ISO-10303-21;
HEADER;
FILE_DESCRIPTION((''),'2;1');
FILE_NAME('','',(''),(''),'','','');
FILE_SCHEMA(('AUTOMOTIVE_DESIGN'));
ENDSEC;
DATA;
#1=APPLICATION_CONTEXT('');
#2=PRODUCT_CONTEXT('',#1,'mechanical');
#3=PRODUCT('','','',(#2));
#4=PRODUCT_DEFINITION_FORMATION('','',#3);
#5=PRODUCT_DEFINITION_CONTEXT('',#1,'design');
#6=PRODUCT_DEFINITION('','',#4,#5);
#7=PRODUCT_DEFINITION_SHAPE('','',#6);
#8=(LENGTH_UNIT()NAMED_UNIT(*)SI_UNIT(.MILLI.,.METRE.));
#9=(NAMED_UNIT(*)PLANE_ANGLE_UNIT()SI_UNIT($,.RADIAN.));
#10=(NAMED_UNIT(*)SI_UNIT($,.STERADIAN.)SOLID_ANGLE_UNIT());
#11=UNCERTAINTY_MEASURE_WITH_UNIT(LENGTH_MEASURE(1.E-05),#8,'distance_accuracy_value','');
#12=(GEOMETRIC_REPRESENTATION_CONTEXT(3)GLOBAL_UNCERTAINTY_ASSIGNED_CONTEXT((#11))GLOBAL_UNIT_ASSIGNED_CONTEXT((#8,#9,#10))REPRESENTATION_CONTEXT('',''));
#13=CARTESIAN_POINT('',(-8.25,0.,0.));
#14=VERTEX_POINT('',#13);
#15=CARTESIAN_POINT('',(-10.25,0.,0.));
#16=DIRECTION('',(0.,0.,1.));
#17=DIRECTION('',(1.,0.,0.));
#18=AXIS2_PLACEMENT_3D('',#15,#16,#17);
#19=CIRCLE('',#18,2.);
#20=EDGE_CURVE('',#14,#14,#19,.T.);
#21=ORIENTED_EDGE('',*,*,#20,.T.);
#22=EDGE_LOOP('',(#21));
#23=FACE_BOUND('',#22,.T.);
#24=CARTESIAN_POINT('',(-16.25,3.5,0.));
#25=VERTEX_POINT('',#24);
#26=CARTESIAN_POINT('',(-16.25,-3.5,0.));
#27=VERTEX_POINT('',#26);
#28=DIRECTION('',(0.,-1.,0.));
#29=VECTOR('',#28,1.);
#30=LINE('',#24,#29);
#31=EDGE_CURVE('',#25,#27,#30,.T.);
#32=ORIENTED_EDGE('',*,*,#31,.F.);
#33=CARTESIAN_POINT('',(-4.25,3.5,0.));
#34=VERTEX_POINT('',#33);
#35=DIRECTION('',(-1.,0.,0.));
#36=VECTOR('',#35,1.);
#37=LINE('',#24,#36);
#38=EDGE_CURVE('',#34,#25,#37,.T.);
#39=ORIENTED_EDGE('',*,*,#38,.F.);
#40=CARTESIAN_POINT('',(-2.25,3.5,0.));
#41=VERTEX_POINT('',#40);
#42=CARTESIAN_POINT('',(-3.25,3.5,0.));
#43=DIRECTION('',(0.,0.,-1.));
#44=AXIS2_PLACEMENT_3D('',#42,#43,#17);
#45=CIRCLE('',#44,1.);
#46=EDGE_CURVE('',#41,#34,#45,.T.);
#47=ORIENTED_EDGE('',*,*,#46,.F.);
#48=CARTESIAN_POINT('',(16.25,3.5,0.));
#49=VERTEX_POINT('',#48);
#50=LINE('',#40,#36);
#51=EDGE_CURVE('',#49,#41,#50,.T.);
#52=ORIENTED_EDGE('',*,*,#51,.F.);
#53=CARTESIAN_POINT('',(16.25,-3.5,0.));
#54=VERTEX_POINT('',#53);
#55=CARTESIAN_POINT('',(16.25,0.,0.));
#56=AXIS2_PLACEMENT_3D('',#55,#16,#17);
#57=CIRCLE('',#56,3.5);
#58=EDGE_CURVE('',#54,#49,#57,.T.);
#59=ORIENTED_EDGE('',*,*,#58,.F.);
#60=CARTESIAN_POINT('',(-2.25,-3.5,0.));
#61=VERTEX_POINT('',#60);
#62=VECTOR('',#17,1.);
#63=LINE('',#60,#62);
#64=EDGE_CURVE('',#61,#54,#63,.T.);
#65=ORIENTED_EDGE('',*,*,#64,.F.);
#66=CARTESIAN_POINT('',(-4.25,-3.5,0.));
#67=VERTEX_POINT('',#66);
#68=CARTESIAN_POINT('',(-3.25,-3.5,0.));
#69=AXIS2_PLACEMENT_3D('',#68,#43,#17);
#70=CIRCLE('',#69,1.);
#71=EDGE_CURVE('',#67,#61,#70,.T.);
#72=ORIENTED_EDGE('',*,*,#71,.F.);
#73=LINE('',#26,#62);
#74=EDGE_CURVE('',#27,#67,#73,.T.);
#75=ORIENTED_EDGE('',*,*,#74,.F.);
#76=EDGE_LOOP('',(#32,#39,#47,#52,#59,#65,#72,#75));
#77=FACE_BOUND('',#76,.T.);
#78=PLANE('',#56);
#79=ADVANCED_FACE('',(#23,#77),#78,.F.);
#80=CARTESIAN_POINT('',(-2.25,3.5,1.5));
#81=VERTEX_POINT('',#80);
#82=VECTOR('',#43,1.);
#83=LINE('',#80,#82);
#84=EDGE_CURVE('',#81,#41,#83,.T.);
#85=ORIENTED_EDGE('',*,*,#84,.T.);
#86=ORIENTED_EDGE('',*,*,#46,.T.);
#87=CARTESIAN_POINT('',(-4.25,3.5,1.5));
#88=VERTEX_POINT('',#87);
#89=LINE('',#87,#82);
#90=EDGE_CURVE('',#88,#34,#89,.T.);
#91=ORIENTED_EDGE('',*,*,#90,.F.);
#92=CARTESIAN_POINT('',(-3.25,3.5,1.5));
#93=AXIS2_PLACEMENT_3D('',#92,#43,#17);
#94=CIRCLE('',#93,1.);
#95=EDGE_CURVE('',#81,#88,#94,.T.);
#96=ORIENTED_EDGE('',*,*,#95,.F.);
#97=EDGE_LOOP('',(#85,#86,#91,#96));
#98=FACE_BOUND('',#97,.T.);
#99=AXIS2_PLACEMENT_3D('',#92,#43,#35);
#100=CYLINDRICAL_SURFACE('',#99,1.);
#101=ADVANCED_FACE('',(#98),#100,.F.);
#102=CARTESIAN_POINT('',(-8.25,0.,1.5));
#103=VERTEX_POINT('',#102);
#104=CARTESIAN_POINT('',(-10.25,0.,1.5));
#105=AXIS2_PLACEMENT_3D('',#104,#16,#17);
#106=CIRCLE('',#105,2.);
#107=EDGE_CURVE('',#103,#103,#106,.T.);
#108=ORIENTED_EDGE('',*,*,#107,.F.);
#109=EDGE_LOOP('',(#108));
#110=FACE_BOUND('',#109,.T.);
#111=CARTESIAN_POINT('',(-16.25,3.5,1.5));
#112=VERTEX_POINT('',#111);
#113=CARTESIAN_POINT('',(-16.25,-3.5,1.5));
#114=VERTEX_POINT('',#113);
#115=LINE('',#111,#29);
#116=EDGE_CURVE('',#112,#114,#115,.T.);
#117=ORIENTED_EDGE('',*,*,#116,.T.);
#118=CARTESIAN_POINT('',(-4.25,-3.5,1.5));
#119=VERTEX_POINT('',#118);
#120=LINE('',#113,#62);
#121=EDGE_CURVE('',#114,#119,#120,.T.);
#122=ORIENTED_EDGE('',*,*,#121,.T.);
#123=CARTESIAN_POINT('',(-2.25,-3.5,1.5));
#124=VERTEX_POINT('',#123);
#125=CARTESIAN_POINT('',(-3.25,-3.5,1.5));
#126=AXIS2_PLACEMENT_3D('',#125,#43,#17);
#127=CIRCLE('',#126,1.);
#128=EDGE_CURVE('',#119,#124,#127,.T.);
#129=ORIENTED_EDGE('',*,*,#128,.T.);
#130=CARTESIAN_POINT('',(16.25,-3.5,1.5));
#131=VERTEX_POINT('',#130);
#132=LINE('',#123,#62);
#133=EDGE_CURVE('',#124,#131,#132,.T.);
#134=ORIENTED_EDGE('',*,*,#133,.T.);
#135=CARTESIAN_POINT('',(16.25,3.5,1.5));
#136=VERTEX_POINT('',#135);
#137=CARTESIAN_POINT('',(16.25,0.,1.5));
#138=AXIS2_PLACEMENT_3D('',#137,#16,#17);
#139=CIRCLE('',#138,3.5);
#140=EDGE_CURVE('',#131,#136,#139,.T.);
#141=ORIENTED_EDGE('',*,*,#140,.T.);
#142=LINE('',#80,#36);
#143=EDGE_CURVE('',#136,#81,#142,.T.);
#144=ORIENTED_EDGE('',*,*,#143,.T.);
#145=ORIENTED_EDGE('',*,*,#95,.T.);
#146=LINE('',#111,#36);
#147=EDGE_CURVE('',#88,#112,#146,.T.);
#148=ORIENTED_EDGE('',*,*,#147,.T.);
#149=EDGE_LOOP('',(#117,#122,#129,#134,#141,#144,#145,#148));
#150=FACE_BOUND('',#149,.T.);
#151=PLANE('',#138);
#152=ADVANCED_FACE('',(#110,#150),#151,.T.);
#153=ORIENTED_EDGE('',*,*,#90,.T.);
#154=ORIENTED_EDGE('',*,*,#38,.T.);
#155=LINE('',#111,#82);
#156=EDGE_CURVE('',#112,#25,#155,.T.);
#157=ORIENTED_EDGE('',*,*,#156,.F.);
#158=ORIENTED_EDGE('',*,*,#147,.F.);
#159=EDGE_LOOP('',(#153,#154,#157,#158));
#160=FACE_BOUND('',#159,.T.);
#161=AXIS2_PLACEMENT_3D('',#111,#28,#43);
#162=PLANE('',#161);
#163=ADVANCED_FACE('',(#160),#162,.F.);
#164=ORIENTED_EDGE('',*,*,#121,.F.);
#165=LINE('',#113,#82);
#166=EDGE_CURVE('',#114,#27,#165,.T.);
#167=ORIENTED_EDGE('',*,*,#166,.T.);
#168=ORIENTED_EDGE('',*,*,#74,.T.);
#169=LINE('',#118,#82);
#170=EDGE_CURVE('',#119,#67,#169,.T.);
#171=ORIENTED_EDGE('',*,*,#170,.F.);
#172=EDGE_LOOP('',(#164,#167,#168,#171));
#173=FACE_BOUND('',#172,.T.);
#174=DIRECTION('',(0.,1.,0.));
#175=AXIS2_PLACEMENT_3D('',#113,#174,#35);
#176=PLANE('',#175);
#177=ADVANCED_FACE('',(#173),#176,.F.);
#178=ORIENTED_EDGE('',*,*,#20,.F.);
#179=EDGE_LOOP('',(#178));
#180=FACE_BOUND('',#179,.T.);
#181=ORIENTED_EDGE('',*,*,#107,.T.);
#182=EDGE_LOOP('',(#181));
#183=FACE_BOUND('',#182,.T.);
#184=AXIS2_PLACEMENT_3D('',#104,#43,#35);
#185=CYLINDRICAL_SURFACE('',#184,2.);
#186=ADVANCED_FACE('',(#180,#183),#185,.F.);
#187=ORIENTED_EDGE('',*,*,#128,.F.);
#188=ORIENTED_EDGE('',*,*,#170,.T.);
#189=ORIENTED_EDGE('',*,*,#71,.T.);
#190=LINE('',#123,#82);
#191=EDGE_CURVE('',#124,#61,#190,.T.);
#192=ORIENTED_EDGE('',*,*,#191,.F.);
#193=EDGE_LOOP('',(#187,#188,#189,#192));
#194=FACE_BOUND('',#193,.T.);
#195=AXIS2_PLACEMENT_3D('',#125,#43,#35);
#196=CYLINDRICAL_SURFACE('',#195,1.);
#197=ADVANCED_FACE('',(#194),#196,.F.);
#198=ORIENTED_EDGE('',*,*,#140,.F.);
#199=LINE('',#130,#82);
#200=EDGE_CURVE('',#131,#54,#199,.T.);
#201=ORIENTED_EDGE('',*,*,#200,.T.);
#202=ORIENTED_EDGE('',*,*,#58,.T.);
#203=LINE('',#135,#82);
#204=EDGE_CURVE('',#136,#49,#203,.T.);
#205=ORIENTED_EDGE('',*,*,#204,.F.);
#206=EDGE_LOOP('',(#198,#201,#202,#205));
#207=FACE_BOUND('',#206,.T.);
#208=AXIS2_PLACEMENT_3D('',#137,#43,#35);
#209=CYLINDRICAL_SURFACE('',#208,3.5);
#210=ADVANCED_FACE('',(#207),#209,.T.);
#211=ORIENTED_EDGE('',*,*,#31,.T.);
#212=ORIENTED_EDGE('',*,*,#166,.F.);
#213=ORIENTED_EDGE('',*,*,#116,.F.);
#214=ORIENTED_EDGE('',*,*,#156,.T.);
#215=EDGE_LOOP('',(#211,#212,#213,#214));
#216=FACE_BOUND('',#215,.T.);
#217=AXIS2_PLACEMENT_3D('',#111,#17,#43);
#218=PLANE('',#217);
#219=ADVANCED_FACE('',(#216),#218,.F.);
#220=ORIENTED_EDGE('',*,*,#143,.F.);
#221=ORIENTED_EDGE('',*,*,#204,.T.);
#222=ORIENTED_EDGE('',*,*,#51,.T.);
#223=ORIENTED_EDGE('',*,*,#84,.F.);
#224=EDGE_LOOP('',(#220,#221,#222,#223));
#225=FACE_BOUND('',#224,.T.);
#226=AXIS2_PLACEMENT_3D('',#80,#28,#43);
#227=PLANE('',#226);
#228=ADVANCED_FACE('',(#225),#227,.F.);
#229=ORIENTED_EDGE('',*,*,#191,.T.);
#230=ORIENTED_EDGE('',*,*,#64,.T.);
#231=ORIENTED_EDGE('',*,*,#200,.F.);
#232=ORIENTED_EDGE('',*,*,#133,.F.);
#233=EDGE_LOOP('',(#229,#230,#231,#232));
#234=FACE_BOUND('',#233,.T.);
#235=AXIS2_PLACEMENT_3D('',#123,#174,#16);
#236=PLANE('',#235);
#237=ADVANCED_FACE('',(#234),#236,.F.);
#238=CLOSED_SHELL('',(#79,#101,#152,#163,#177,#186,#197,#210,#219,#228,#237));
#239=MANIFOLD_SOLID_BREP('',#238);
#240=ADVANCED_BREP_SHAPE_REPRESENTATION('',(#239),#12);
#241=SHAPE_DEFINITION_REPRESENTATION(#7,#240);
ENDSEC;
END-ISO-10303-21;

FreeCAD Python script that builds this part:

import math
import FreeCAD as App
import Part
import Sketcher

V = App.Vector

doc = App.newDocument("Part")
params = doc.addObject("Spreadsheet::Sheet", "Params")
for row, (alias, value) in enumerate([
    ("sketch1_diameter", "4 mm"),
    ("sketch1_radius", "1 mm"),
    ("sketch1_radius2", "3.5 mm"),
    ("sketch1_width", "12 mm"),
    ("sketch1_width2", "18.5 mm"),
    ("pad1_length", "1.5 mm"),
], start=1):
    params.set(f"A{row}", alias)
    params.set(f"B{row}", "=" + value)
    params.setAlias(f"B{row}", alias)

body = doc.addObject("PartDesign::Body", "Body")

# Sketch on XY plane
sketch1 = body.newObject("Sketcher::SketchObject", "Sketch")
sketch1.AttachmentSupport = (doc.getObject("XY_Plane"), [""])
sketch1.MapMode = "FlatFace"
sketch1.addGeometry(Part.LineSegment(V(-4.25, 3.5, 0), V(-16.25, 3.5, 0)), False)
sketch1.addGeometry(Part.LineSegment(V(-16.25, 3.5, 0), V(-16.25, -3.5, 0)), False)
sketch1.addGeometry(Part.LineSegment(V(-16.25, -3.5, 0), V(-4.25, -3.5, 0)), False)
sketch1.addGeometry(Part.ArcOfCircle(Part.Circle(V(-3.25, -3.5, 0), V(0, 0, 1), 1), math.radians(0), math.radians(180)), False)
sketch1.addGeometry(Part.LineSegment(V(-2.25, -3.5, 0), V(16.25, -3.5, 0)), False)
sketch1.addGeometry(Part.ArcOfCircle(Part.Circle(V(16.25, 0, 0), V(0, 0, 1), 3.5), math.radians(-90), math.radians(90)), False)
sketch1.addGeometry(Part.LineSegment(V(16.25, 3.5, 0), V(-2.25, 3.5, 0)), False)
sketch1.addGeometry(Part.ArcOfCircle(Part.Circle(V(-3.25, 3.5, 0), V(0, 0, 1), 1), math.radians(180), math.radians(360)), False)
sketch1.addGeometry(Part.Circle(V(-10.25, 0, 0), V(0, 0, 1), 2), False)
sketch1.addConstraint(Sketcher.Constraint("Coincident", 0, 2, 1, 1))
sketch1.addConstraint(Sketcher.Constraint("Coincident", 1, 2, 2, 1))
sketch1.addConstraint(Sketcher.Constraint("Coincident", 2, 2, 3, 2))
sketch1.addConstraint(Sketcher.Constraint("Coincident", 3, 1, 4, 1))
sketch1.addConstraint(Sketcher.Constraint("Tangent", 4, 2, 5, 1))
sketch1.addConstraint(Sketcher.Constraint("Tangent", 5, 2, 6, 1))
sketch1.addConstraint(Sketcher.Constraint("Coincident", 6, 2, 7, 2))
sketch1.addConstraint(Sketcher.Constraint("Coincident", 7, 1, 0, 1))
sketch1.addConstraint(Sketcher.Constraint("Horizontal", 0))
sketch1.addConstraint(Sketcher.Constraint("Vertical", 1))
sketch1.addConstraint(Sketcher.Constraint("Horizontal", 2))
sketch1.addConstraint(Sketcher.Constraint("Horizontal", 4))
sketch1.addConstraint(Sketcher.Constraint("Horizontal", 6))
sketch1.addConstraint(Sketcher.Constraint("Equal", 3, 7))
sketch1.addConstraint(Sketcher.Constraint("Symmetric", 0, 2, 4, 2, -1, 1))
sketch1.addConstraint(Sketcher.Constraint("Symmetric", 3, 3, 7, 3, -1))
sketch1.addConstraint(Sketcher.Constraint("PointOnObject", 5, 3, -1))
sketch1.addConstraint(Sketcher.Constraint("PointOnObject", 8, 3, -1))
sketch1.addConstraint(Sketcher.Constraint("Horizontal", 7, 3, 0, 2))
sketch1.addConstraint(Sketcher.Constraint("Horizontal", 3, 3, 1, 2))
sketch1.addConstraint(Sketcher.Constraint("Diameter", 8, 4.0))
sketch1.addConstraint(Sketcher.Constraint("Radius", 3, 1.0))
sketch1.addConstraint(Sketcher.Constraint("Radius", 5, 3.5))
sketch1.addConstraint(Sketcher.Constraint("DistanceX", 0, 2, 0, 1, 12.0))
sketch1.addConstraint(Sketcher.Constraint("DistanceX", 4, 1, 4, 2, 18.5))
sketch1.addConstraint(Sketcher.Constraint("DistanceX", 8, 3, 3, 3, 7.0))
sketch1.setExpression("Constraints[20]", "Params.sketch1_diameter")
sketch1.setExpression("Constraints[21]", "Params.sketch1_radius")
sketch1.setExpression("Constraints[22]", "Params.sketch1_radius2")
sketch1.setExpression("Constraints[23]", "Params.sketch1_width")
sketch1.setExpression("Constraints[24]", "Params.sketch1_width2")
pad1 = body.newObject("PartDesign::Pad", "Pad")
pad1.Profile = sketch1
pad1.setExpression("Length", "Params.pad1_length")

doc.recompute()
